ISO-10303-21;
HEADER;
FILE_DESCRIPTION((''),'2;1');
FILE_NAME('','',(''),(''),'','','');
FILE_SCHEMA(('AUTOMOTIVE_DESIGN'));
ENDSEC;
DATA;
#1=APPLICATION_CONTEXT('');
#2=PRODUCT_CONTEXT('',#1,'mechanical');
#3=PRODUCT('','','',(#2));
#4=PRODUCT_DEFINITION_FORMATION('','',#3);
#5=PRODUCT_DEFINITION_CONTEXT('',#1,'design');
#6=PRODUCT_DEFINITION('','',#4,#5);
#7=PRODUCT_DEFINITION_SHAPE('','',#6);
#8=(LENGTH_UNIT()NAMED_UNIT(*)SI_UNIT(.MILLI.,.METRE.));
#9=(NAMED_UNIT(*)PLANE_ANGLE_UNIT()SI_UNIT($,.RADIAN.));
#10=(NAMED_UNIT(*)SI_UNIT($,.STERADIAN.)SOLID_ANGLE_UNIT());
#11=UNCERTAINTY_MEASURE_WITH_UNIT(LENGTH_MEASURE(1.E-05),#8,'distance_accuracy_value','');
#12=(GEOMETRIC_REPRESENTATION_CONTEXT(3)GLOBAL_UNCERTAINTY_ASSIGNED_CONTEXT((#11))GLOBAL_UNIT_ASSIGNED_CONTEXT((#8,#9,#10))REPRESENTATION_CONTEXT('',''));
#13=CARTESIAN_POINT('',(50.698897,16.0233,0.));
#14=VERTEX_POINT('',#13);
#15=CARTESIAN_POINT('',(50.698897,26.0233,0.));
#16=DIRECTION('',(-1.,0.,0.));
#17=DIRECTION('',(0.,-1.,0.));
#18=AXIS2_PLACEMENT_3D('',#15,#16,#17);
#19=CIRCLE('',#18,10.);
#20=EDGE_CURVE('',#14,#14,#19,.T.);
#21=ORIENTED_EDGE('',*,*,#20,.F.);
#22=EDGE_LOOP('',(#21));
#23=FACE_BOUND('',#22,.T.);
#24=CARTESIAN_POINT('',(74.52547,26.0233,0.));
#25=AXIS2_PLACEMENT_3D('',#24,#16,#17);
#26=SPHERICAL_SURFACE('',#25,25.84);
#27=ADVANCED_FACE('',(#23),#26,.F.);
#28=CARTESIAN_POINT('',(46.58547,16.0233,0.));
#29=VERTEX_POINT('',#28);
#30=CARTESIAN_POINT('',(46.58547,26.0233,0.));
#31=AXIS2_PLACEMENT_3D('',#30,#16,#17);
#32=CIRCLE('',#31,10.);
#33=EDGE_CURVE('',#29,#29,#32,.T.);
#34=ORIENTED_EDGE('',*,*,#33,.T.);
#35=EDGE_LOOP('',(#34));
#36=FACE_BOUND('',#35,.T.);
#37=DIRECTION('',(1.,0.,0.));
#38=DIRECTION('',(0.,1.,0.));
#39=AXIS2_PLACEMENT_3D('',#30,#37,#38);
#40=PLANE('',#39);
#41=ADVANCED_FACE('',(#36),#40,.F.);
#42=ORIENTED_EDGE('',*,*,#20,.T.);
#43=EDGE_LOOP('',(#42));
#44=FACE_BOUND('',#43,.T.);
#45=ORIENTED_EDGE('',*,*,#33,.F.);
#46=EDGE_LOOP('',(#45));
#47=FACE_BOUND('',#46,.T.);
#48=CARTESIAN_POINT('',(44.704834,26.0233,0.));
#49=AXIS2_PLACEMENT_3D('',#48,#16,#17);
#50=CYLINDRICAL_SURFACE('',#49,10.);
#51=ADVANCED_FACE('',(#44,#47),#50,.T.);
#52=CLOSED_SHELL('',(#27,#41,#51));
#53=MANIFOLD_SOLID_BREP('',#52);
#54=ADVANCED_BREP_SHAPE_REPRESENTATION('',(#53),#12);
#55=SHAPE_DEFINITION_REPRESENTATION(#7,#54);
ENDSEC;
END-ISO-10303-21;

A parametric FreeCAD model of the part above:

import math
import FreeCAD as App
import Part
import Sketcher

V = App.Vector

doc = App.newDocument("Part")
body = doc.addObject("PartDesign::Body", "Body")

# Sketch on XY plane
sketch1 = body.newObject("Sketcher::SketchObject", "Sketch")
sketch1.AttachmentSupport = (doc.getObject("XY_Plane"), [""])
sketch1.MapMode = "FlatFace"
sketch1.addGeometry(Part.LineSegment(V(46.6, 36, 0), V(46.6, 26, 0)), False)
sketch1.addGeometry(Part.LineSegment(V(46.6, 26, 0), V(48.7, 26, 0)), False)
sketch1.addGeometry(Part.ArcOfCircle(Part.Circle(V(74.5, 26, 0), V(0, 0, 1), 25.8), math.radians(157), math.radians(180)), False)
sketch1.addGeometry(Part.LineSegment(V(50.7, 36, 0), V(46.6, 36, 0)), False)
sketch1.addGeometry(Part.LineSegment(V(46.6, 26, 0), V(74.5, 26, 0)), True)  # axis
sketch1.addConstraint(Sketcher.Constraint("Coincident", 0, 2, 1, 1))
sketch1.addConstraint(Sketcher.Constraint("Coincident", 1, 2, 2, 2))
sketch1.addConstraint(Sketcher.Constraint("Coincident", 2, 1, 3, 1))
sketch1.addConstraint(Sketcher.Constraint("Coincident", 3, 2, 0, 1))
sketch1.addConstraint(Sketcher.Constraint("Vertical", 0))
sketch1.addConstraint(Sketcher.Constraint("Horizontal", 1))
sketch1.addConstraint(Sketcher.Constraint("Horizontal", 3))
sketch1.addConstraint(Sketcher.Constraint("Horizontal", 4))
sketch1.addConstraint(Sketcher.Constraint("Coincident", 4, 1, 0, 2))
sketch1.addConstraint(Sketcher.Constraint("Coincident", 4, 2, 2, 3))
sketch1.addConstraint(Sketcher.Constraint("DistanceY", 0, 2, 0, 1, 10.0))
sketch1.addConstraint(Sketcher.Constraint("Radius", 2, 25.84))
sketch1.addConstraint(Sketcher.Constraint("DistanceX", 1, 1, 1, 2, 2.1))
sketch1.addConstraint(Sketcher.Constraint("DistanceY", -1, 1, 2, 3, 26.0233))
sketch1.addConstraint(Sketcher.Constraint("DistanceX", -1, 1, 2, 3, 74.52547))
revolution = body.newObject("PartDesign::Revolution", "Revolution")
revolution.Profile = sketch1
revolution.ReferenceAxis = (sketch1, ["Axis0"])
revolution.Angle = 360

doc.recompute()
